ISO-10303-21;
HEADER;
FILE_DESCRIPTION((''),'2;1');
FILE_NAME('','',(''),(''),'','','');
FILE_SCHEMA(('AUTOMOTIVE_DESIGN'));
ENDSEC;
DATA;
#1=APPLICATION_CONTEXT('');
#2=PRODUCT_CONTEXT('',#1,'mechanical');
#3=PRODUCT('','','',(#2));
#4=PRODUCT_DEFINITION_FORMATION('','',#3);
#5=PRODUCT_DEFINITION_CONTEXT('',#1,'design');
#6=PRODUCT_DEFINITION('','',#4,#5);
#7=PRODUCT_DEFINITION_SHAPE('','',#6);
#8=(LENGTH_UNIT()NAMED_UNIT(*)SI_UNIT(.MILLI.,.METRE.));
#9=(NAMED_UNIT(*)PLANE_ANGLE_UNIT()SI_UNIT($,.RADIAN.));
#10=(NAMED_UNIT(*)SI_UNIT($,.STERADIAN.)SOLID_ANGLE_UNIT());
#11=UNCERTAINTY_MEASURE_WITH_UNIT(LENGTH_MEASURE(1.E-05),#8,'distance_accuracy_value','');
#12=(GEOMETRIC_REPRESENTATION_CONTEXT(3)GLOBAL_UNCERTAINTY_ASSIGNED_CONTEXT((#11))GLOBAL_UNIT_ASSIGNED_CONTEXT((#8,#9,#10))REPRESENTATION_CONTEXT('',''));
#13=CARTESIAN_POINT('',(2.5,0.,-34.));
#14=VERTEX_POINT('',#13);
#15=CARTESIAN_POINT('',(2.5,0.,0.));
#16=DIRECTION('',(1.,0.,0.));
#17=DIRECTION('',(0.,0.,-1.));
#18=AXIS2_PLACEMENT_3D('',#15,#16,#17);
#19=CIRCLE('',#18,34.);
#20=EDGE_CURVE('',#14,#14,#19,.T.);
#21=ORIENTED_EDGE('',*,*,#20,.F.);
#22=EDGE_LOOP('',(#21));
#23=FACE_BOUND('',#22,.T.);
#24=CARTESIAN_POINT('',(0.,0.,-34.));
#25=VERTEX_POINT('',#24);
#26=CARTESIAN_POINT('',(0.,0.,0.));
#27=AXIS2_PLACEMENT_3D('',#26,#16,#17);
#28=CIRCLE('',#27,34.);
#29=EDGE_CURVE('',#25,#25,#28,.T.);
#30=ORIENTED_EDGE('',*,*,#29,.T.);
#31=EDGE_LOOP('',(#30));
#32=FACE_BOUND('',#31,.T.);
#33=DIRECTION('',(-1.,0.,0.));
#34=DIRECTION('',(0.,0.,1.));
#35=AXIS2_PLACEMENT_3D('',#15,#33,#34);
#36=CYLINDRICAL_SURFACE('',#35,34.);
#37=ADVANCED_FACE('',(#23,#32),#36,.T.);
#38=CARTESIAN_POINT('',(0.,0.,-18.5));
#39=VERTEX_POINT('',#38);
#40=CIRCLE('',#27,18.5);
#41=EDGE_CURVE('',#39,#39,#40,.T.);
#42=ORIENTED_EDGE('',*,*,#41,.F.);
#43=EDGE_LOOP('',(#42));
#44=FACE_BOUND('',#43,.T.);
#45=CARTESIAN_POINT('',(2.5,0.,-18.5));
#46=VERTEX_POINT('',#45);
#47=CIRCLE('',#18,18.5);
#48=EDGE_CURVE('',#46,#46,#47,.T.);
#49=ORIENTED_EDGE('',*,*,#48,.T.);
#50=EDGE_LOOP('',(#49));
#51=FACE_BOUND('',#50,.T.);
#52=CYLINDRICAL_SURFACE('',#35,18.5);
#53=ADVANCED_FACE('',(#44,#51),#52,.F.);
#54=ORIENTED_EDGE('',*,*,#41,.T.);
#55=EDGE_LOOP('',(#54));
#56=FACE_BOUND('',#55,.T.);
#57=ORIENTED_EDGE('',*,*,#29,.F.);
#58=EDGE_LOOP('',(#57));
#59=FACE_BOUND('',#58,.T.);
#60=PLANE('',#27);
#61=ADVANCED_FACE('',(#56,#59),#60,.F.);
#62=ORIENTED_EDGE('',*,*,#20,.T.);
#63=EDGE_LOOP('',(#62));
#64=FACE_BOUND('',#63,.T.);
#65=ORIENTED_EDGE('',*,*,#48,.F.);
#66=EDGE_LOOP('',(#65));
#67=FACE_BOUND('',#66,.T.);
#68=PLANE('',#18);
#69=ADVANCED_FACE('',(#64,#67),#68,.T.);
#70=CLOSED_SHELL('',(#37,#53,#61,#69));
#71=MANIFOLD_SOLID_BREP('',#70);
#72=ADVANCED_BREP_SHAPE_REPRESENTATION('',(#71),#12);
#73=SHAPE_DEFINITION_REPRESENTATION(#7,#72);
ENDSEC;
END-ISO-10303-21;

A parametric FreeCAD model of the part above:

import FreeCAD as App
import Part
import Sketcher
from FreeCAD import Vector
Q = App.Units.Quantity

doc = App.newDocument("Part")
body = doc.addObject("PartDesign::Body", "Body")

sketch1 = doc.addObject("Sketcher::SketchObject", "Sketch")
body.addObject(sketch1)
sketch1.AttachmentSupport = (doc.YZ_Plane, [""])
sketch1.MapMode = "FlatFace"
sketch1.addGeometry(Part.Circle(Vector(0, 0, 0), Vector(0, 0, 1), 34), False)
sketch1.addGeometry(Part.Circle(Vector(0, 0, 0), Vector(0, 0, 1), 18.5), False)
sketch1.addConstraint(Sketcher.Constraint("Coincident", 0, 3, -1, 1))
sketch1.addConstraint(Sketcher.Constraint("Coincident", 1, 3, -1, 1))
sketch1.addConstraint(Sketcher.Constraint("Diameter", 0, Q("68 mm")))
sketch1.addConstraint(Sketcher.Constraint("Diameter", 1, Q("37 mm")))
pad1 = doc.addObject("PartDesign::Pad", "Pad")
body.addObject(pad1)
pad1.Profile = sketch1
pad1.Length = 2.5

doc.recompute()
